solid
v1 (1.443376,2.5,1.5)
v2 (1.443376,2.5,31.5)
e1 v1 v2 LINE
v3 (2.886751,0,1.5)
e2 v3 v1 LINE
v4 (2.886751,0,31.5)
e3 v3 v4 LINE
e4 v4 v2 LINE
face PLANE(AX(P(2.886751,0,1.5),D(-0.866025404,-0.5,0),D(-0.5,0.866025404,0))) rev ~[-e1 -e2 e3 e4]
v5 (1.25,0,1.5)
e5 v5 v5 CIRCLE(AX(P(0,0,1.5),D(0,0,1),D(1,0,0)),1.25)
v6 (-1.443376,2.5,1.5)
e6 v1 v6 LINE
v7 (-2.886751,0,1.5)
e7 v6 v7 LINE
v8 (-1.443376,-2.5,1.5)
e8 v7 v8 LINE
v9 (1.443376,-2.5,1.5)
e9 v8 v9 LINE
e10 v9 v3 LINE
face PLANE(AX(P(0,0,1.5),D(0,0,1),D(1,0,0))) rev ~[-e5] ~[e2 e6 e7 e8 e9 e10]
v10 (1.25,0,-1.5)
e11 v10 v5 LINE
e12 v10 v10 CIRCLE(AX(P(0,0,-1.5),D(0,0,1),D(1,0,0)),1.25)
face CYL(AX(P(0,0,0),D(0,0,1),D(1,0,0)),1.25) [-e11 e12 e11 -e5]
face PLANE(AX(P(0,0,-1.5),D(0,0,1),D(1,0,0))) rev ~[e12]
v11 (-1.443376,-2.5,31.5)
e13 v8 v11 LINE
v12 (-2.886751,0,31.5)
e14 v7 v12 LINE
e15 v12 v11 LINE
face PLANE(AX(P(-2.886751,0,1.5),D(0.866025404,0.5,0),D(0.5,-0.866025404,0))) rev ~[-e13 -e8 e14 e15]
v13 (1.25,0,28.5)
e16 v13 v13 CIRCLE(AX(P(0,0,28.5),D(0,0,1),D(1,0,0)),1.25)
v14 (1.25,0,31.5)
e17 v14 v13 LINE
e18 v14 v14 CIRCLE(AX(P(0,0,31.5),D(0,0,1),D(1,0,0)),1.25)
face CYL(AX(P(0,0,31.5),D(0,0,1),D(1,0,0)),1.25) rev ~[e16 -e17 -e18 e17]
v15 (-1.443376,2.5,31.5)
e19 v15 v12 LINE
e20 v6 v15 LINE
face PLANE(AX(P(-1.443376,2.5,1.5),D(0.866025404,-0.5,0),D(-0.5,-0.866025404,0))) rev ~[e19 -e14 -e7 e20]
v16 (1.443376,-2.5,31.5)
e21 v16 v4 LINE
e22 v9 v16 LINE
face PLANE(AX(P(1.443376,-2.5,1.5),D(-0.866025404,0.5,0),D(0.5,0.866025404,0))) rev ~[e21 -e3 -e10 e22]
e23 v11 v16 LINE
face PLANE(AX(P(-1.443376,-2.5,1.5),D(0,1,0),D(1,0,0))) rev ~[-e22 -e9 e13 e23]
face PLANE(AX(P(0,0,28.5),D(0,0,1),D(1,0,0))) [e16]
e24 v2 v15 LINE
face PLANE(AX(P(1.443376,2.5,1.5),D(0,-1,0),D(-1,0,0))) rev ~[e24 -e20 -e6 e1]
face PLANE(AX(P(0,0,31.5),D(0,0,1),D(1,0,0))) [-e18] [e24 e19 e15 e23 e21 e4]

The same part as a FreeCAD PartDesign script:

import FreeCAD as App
import Part
import Sketcher
Q = App.Units.Quantity


def add_polygon(sketch, points):
    """Adds a closed chain of lines whose ends are joined by coincident constraints."""
    first, n = sketch.GeometryCount, len(points)
    for a, b in zip(points, points[1:] + points[:1]):
        sketch.addGeometry(Part.LineSegment(App.Vector(*a, 0), App.Vector(*b, 0)), False)
    for i in range(n):
        sketch.addConstraint(Sketcher.Constraint("Coincident", first + i, 2, first + (i + 1) % n, 1))

doc = App.newDocument("Part")
body = doc.addObject("PartDesign::Body", "Body")

sketch1 = body.newObject("Sketcher::SketchObject", "Sketch")
sketch1.AttachmentSupport = (doc.getObject("XY_Plane"), [""])
sketch1.MapMode = "FlatFace"
sketch1.addGeometry(Part.Circle(App.Vector(0, 0, 0), App.Vector(0, 0, 1), 1.2), False)
sketch1.addConstraint([
    Sketcher.Constraint("Coincident", 0, 3, -1, 1),
    Sketcher.Constraint("Diameter", 0, Q("2.5 mm")),
])
pad1 = body.newObject("PartDesign::Pad", "Pad")
pad1.Profile = sketch1
pad1.Length = 3
pad1.Midplane = True

sketch2 = body.newObject("Sketcher::SketchObject", "Sketch001")
sketch2.AttachmentSupport = (doc.getObject("XY_Plane"), [""])
sketch2.MapMode = "FlatFace"
sketch2.AttachmentOffset = App.Placement(App.Vector(0, 0, 1.5), App.Rotation())
add_polygon(sketch2, [(-1.4, -2.5), (1.4, -2.5), (2.9, 0), (1.4, 2.5), (-1.4, 2.5), (-2.9, 0)])
sketch2.addConstraint([
    Sketcher.Constraint("Horizontal", 0),
    Sketcher.Constraint("Horizontal", 3),
    Sketcher.Constraint("Symmetric", 0, 2, 3, 2, -1, 1),
    Sketcher.Constraint("Symmetric", 1, 2, 4, 2, -1, 1),
    Sketcher.Constraint("PointOnObject", 1, 2, -1),
    Sketcher.Constraint("Parallel", 2, 5),
    Sketcher.Constraint("Vertical", 0, 2, 2, 2),
    Sketcher.Constraint("Angle", 1, Q("60 deg")),
    Sketcher.Constraint("DistanceY", 0, 2, 2, 2, Q("5 mm")),
    Sketcher.Constraint("DistanceX", 0, 1, 0, 2, Q("2.886751 mm")),
])
pad2 = body.newObject("PartDesign::Pad", "Pad001")
pad2.Profile = sketch2
pad2.Length = 30

sketch3 = body.newObject("Sketcher::SketchObject", "Sketch002")
sketch3.AttachmentSupport = (doc.getObject("XY_Plane"), [""])
sketch3.MapMode = "FlatFace"
sketch3.AttachmentOffset = App.Placement(App.Vector(0, 0, 31.5), App.Rotation())
sketch3.addGeometry(Part.Circle(App.Vector(0, 0, 0), App.Vector(0, 0, 1), 1.2), False)
sketch3.addConstraint([
    Sketcher.Constraint("Coincident", 0, 3, -1, 1),
    Sketcher.Constraint("Diameter", 0, Q("2.5 mm")),
])
pocket1 = body.newObject("PartDesign::Pocket", "Pocket")
pocket1.Profile = sketch3
pocket1.Length = 3

doc.recompute()
